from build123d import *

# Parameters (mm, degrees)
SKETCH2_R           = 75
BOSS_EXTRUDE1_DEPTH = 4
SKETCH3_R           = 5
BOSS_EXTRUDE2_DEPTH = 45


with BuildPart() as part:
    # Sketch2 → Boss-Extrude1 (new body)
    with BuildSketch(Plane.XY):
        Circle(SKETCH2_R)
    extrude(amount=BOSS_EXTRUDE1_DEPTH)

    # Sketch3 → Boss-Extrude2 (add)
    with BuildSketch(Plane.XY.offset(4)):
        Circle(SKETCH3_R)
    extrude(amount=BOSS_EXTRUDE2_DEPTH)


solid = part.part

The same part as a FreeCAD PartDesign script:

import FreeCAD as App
import Part
import Sketcher

doc = App.newDocument("Part")
body = doc.addObject("PartDesign::Body", "Body")

sketch1 = body.newObject("Sketcher::SketchObject", "Sketch")
sketch1.AttachmentSupport = (doc.getObject("XY_Plane"), [""])
sketch1.MapMode = "FlatFace"
sketch1.addGeometry(Part.Circle(App.Vector(0, 0, 0), App.Vector(0, 0, 1), 75), False)
sketch1.addConstraint(Sketcher.Constraint("Coincident", 0, 3, -1, 1))
sketch1.addConstraint(Sketcher.Constraint("Diameter", 0, 150.0))
pad1 = body.newObject("PartDesign::Pad", "Pad")
pad1.Profile = sketch1
pad1.Length = 4

sketch2 = body.newObject("Sketcher::SketchObject", "Sketch001")
sketch2.AttachmentSupport = (doc.getObject("XY_Plane"), [""])
sketch2.MapMode = "FlatFace"
sketch2.AttachmentOffset = App.Placement(App.Vector(0, 0, 4), App.Rotation())
sketch2.addGeometry(Part.Circle(App.Vector(0, 0, 0), App.Vector(0, 0, 1), 5), False)
sketch2.addConstraint(Sketcher.Constraint("Coincident", 0, 3, -1, 1))
sketch2.addConstraint(Sketcher.Constraint("Diameter", 0, 10.0))
pad2 = body.newObject("PartDesign::Pad", "Pad001")
pad2.Profile = sketch2
pad2.Length = 45

doc.recompute()
